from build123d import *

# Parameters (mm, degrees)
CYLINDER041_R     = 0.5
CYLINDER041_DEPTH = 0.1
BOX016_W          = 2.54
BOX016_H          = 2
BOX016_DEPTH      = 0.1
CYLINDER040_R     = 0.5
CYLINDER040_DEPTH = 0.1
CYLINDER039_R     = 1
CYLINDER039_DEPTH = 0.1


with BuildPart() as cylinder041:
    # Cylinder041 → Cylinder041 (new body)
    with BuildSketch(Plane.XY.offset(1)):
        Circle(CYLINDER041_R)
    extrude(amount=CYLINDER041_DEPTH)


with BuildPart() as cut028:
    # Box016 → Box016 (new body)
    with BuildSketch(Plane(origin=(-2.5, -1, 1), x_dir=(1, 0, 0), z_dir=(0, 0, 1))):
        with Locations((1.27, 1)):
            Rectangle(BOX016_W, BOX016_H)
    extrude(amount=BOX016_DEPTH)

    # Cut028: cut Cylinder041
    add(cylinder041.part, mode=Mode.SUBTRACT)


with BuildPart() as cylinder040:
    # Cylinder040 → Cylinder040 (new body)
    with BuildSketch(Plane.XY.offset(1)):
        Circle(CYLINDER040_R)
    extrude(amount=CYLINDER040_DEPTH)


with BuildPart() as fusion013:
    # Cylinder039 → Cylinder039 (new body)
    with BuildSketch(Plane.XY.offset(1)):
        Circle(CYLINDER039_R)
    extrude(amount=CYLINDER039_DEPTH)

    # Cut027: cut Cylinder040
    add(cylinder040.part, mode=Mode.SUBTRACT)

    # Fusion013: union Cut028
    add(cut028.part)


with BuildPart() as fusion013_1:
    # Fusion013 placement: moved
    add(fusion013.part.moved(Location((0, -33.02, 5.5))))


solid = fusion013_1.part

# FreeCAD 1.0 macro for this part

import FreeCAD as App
import Part
import Sketcher
from FreeCAD import Vector

doc = App.newDocument("Part")
params = doc.addObject("Spreadsheet::Sheet", "Params")
for row, (alias, value) in enumerate([
    ("sketch1_diameter", "1 mm"),
    ("pad1_length", "0.1 mm"),
    ("sketch2_height", "2 mm"),
    ("sketch2_width", "2.54 mm"),
    ("pad2_length", "0.1 mm"),
    ("sketch3_diameter", "1 mm"),
    ("pad3_length", "0.1 mm"),
    ("sketch4_diameter", "2 mm"),
    ("pad4_length", "0.1 mm"),
], start=1):
    params.set(f"A{row}", alias)
    params.set(f"B{row}", "=" + value)
    params.setAlias(f"B{row}", alias)

body = doc.addObject("PartDesign::Body", "Body")

# Sketch on XY plane
sketch1 = body.newObject("Sketcher::SketchObject", "Sketch")
sketch1.AttachmentSupport = (doc.getObject("XY_Plane"), [""])
sketch1.MapMode = "FlatFace"
sketch1.AttachmentOffset = App.Placement(Vector(0, 0, 1), App.Rotation())
sketch1.addGeometry(Part.Circle(Vector(0, 0, 0), Vector(0, 0, 1), 0.5), False)
sketch1.addConstraint(Sketcher.Constraint("Coincident", 0, 3, -1, 1))
sketch1.addConstraint(Sketcher.Constraint("Diameter", 0, 1.0))
sketch1.setExpression("Constraints[1]", "Params.sketch1_diameter")
pad1 = body.newObject("PartDesign::Pad", "Pad")
pad1.Profile = sketch1
pad1.setExpression("Length", "Params.pad1_length")
body2 = doc.addObject("PartDesign::Body", "Body001")

# Sketch on XY plane
sketch2 = body2.newObject("Sketcher::SketchObject", "Sketch001")
sketch2.AttachmentSupport = (doc.getObject("XY_Plane001"), [""])
sketch2.MapMode = "FlatFace"
sketch2.AttachmentOffset = App.Placement(Vector(0, 0, 1), App.Rotation())
sketch2.addGeometry(Part.LineSegment(Vector(-2.5, 1, 0), Vector(-2.5, -1, 0)), False)
sketch2.addGeometry(Part.LineSegment(Vector(-2.5, -1, 0), Vector(0, -1, 0)), False)
sketch2.addGeometry(Part.LineSegment(Vector(0, -1, 0), Vector(0, 1, 0)), False)
sketch2.addGeometry(Part.LineSegment(Vector(0, 1, 0), Vector(-2.5, 1, 0)), False)
sketch2.addConstraint(Sketcher.Constraint("Coincident", 0, 2, 1, 1))
sketch2.addConstraint(Sketcher.Constraint("Coincident", 1, 2, 2, 1))
sketch2.addConstraint(Sketcher.Constraint("Coincident", 2, 2, 3, 1))
sketch2.addConstraint(Sketcher.Constraint("Coincident", 3, 2, 0, 1))
sketch2.addConstraint(Sketcher.Constraint("Vertical", 0))
sketch2.addConstraint(Sketcher.Constraint("Horizontal", 1))
sketch2.addConstraint(Sketcher.Constraint("Vertical", 2))
sketch2.addConstraint(Sketcher.Constraint("Horizontal", 3))
sketch2.addConstraint(Sketcher.Constraint("DistanceY", 0, 2, 0, 1, 2.0))
sketch2.addConstraint(Sketcher.Constraint("DistanceY", 0, 2, -1, 1, 1.0))
sketch2.addConstraint(Sketcher.Constraint("DistanceX", 1, 1, 1, 2, 2.54))
sketch2.addConstraint(Sketcher.Constraint("DistanceX", 0, 2, -1, 1, 2.5))
sketch2.setExpression("Constraints[8]", "Params.sketch2_height")
sketch2.setExpression("Constraints[10]", "Params.sketch2_width")
pad2 = body2.newObject("PartDesign::Pad", "Pad001")
pad2.Profile = sketch2
pad2.setExpression("Length", "Params.pad2_length")
doc.recompute()

boolean = body2.newObject("PartDesign::Boolean", "Boolean")
boolean.Type = "Cut"
boolean.addObjects([body])
body3 = doc.addObject("PartDesign::Body", "Body002")

# Sketch on XY plane
sketch3 = body3.newObject("Sketcher::SketchObject", "Sketch002")
sketch3.AttachmentSupport = (doc.getObject("XY_Plane002"), [""])
sketch3.MapMode = "FlatFace"
sketch3.AttachmentOffset = App.Placement(Vector(0, 0, 1), App.Rotation())
sketch3.addGeometry(Part.Circle(Vector(0, 0, 0), Vector(0, 0, 1), 0.5), False)
sketch3.addConstraint(Sketcher.Constraint("Coincident", 0, 3, -1, 1))
sketch3.addConstraint(Sketcher.Constraint("Diameter", 0, 1.0))
sketch3.setExpression("Constraints[1]", "Params.sketch3_diameter")
pad3 = body3.newObject("PartDesign::Pad", "Pad002")
pad3.Profile = sketch3
pad3.setExpression("Length", "Params.pad3_length")
body4 = doc.addObject("PartDesign::Body", "Body003")

# Sketch on XY plane
sketch4 = body4.newObject("Sketcher::SketchObject", "Sketch003")
sketch4.AttachmentSupport = (doc.getObject("XY_Plane003"), [""])
sketch4.MapMode = "FlatFace"
sketch4.AttachmentOffset = App.Placement(Vector(0, 0, 1), App.Rotation())
sketch4.addGeometry(Part.Circle(Vector(0, 0, 0), Vector(0, 0, 1), 1), False)
sketch4.addConstraint(Sketcher.Constraint("Coincident", 0, 3, -1, 1))
sketch4.addConstraint(Sketcher.Constraint("Diameter", 0, 2.0))
sketch4.setExpression("Constraints[1]", "Params.sketch4_diameter")
pad4 = body4.newObject("PartDesign::Pad", "Pad003")
pad4.Profile = sketch4
pad4.setExpression("Length", "Params.pad4_length")
doc.recompute()

boolean2 = body4.newObject("PartDesign::Boolean", "Boolean001")
boolean2.Type = "Cut"
boolean2.addObjects([body3])
doc.recompute()

boolean3 = body4.newObject("PartDesign::Boolean", "Boolean002")
boolean3.Type = "Fuse"
boolean3.addObjects([body2])
body5 = doc.addObject("PartDesign::Body", "Body004")
doc.recompute()

body4.Placement = App.Placement(Vector(0, -33.02, 5.5), App.Rotation(Vector(0, 0, 1), 0))
boolean4 = body5.newObject("PartDesign::Boolean", "Boolean003")
boolean4.Type = "Fuse"
boolean4.addObjects([body4])

doc.recompute()
